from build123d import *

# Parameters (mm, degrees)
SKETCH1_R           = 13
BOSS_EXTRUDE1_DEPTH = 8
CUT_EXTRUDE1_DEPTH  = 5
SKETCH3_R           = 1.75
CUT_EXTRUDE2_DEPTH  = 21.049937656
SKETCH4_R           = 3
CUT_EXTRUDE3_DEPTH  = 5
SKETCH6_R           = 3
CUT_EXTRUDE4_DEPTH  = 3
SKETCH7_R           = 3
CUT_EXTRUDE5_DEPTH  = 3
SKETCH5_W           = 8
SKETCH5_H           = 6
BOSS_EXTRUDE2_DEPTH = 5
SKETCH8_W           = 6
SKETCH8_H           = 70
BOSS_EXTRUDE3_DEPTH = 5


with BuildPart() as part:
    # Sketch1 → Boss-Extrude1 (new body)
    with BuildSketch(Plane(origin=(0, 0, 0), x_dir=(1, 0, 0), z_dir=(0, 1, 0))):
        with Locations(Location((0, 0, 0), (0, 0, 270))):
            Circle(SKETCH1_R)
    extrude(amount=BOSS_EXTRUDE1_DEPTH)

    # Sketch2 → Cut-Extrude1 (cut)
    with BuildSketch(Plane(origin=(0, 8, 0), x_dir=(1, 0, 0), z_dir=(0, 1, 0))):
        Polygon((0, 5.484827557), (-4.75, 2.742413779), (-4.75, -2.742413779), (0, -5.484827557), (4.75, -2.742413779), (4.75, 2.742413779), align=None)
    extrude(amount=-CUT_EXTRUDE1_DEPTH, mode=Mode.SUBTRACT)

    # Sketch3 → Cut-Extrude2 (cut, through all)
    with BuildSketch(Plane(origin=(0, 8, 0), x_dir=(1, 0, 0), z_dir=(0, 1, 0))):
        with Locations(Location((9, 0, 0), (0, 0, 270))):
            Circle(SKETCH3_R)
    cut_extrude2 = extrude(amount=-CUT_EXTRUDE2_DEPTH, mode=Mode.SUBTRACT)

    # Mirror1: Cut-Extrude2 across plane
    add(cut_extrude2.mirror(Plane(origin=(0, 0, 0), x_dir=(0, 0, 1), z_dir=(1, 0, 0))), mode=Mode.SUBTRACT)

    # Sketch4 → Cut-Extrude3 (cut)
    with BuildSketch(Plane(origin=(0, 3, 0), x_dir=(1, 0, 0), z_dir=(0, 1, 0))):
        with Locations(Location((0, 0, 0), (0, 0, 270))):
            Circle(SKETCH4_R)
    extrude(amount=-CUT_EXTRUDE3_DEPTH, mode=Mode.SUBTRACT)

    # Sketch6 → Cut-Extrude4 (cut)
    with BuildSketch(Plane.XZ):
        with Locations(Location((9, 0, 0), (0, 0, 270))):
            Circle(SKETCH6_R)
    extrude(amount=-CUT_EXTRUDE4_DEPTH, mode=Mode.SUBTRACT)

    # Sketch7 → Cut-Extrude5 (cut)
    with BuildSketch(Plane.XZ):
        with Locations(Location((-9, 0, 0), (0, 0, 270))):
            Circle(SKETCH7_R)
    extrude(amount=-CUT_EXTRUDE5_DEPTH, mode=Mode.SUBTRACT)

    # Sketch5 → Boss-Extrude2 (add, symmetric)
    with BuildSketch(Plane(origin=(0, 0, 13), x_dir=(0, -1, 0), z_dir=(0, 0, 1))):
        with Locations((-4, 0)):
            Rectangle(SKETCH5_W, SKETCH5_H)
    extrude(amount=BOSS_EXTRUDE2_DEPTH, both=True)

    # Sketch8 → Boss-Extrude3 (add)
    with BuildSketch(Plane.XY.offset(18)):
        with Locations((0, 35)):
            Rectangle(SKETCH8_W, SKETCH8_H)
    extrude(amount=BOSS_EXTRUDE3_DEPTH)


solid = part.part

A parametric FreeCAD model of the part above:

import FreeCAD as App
import Part
import Sketcher

V = App.Vector
Q = App.Units.Quantity


def add_polygon(sketch, points):
    """Adds a closed chain of lines whose ends are joined by coincident constraints."""
    first, n = sketch.GeometryCount, len(points)
    for a, b in zip(points, points[1:] + points[:1]):
        sketch.addGeometry(Part.LineSegment(App.Vector(*a, 0), App.Vector(*b, 0)), False)
    for i in range(n):
        sketch.addConstraint(Sketcher.Constraint("Coincident", first + i, 2, first + (i + 1) % n, 1))

doc = App.newDocument("Part")
body = doc.addObject("PartDesign::Body", "Body")

# Sketch on XZ plane
sketch1 = body.newObject("Sketcher::SketchObject", "Sketch")
sketch1.AttachmentSupport = (doc.getObject("XZ_Plane"), [""])
sketch1.MapMode = "FlatFace"
sketch1.addGeometry(Part.Circle(V(0, 0, 0), V(0, 0, 1), 13), False)
sketch1.addConstraint(Sketcher.Constraint("Coincident", 0, 3, -1, 1))
sketch1.addConstraint(Sketcher.Constraint("Diameter", 0, 26.0))
pad1 = body.newObject("PartDesign::Pad", "Pad")
pad1.Profile = sketch1
pad1.Length = 8
pad1.Reversed = True

# Sketch on XZ plane
sketch2 = body.newObject("Sketcher::SketchObject", "Sketch001")
sketch2.AttachmentSupport = (doc.getObject("XZ_Plane"), [""])
sketch2.MapMode = "FlatFace"
sketch2.AttachmentOffset = App.Placement(V(0, 0, -8), App.Rotation())
add_polygon(sketch2, [(0, -5.484828), (-4.75, -2.742414), (-4.75, 2.742414), (0, 5.484828), (4.75, 2.742414), (4.75, -2.742414)])  # lines 0-5
sketch2.addConstraint(Sketcher.Constraint("Vertical", 1))
sketch2.addConstraint(Sketcher.Constraint("Vertical", 4))
sketch2.addConstraint(Sketcher.Constraint("Symmetric", 0, 2, 3, 2, -1, 1))
sketch2.addConstraint(Sketcher.Constraint("Symmetric", 2, 2, 5, 2, -1, 1))
sketch2.addConstraint(Sketcher.Constraint("PointOnObject", 2, 2, -2))
sketch2.addConstraint(Sketcher.Constraint("Parallel", 2, 5))
sketch2.addConstraint(Sketcher.Constraint("Horizontal", 1, 2, 3, 2))
sketch2.addConstraint(Sketcher.Constraint("Angle", 0, Q("150 deg")))
sketch2.addConstraint(Sketcher.Constraint("DistanceX", 1, 2, 3, 2, 9.5))
sketch2.addConstraint(Sketcher.Constraint("DistanceY", 1, 1, 1, 2, 5.484828))
pocket1 = body.newObject("PartDesign::Pocket", "Pocket")
pocket1.Profile = sketch2
pocket1.Length = 5
pocket1.Reversed = True

# Sketch on XZ plane
sketch3 = body.newObject("Sketcher::SketchObject", "Sketch002")
sketch3.AttachmentSupport = (doc.getObject("XZ_Plane"), [""])
sketch3.MapMode = "FlatFace"
sketch3.AttachmentOffset = App.Placement(V(0, 0, -8), App.Rotation())
sketch3.addGeometry(Part.Circle(V(9, 0, 0), V(0, 0, 1), 1.75), False)
sketch3.addConstraint(Sketcher.Constraint("PointOnObject", 0, 3, -1))
sketch3.addConstraint(Sketcher.Constraint("Diameter", 0, 3.5))
sketch3.addConstraint(Sketcher.Constraint("DistanceX", -1, 1, 0, 3, 9.0))
pocket2 = body.newObject("PartDesign::Pocket", "Pocket001")
pocket2.Profile = sketch3
pocket2.Type = "ThroughAll"
pocket2.Reversed = True
doc.recompute()

mirrored = body.newObject("PartDesign::Mirrored", "Mirrored")
mirrored.Originals = [pocket2]
mirrored.MirrorPlane = (doc.getObject("YZ_Plane"), [""])
body.Tip = mirrored

# Sketch on XZ plane
sketch4 = body.newObject("Sketcher::SketchObject", "Sketch003")
sketch4.AttachmentSupport = (doc.getObject("XZ_Plane"), [""])
sketch4.MapMode = "FlatFace"
sketch4.AttachmentOffset = App.Placement(V(0, 0, -3), App.Rotation())
sketch4.addGeometry(Part.Circle(V(0, 0, 0), V(0, 0, 1), 3), False)
sketch4.addConstraint(Sketcher.Constraint("Coincident", 0, 3, -1, 1))
sketch4.addConstraint(Sketcher.Constraint("Diameter", 0, 6.0))
pocket3 = body.newObject("PartDesign::Pocket", "Pocket002")
pocket3.Profile = sketch4
pocket3.Length = 5
pocket3.Reversed = True

# Sketch on XZ plane
sketch5 = body.newObject("Sketcher::SketchObject", "Sketch004")
sketch5.AttachmentSupport = (doc.getObject("XZ_Plane"), [""])
sketch5.MapMode = "FlatFace"
sketch5.addGeometry(Part.Circle(V(9, 0, 0), V(0, 0, 1), 3), False)
sketch5.addConstraint(Sketcher.Constraint("PointOnObject", 0, 3, -1))
sketch5.addConstraint(Sketcher.Constraint("Diameter", 0, 6.0))
sketch5.addConstraint(Sketcher.Constraint("DistanceX", -1, 1, 0, 3, 9.0))
pocket4 = body.newObject("PartDesign::Pocket", "Pocket003")
pocket4.Profile = sketch5
pocket4.Length = 3

# Sketch on XZ plane
sketch6 = body.newObject("Sketcher::SketchObject", "Sketch005")
sketch6.AttachmentSupport = (doc.getObject("XZ_Plane"), [""])
sketch6.MapMode = "FlatFace"
sketch6.addGeometry(Part.Circle(V(-9, 0, 0), V(0, 0, 1), 3), False)
sketch6.addConstraint(Sketcher.Constraint("PointOnObject", 0, 3, -1))
sketch6.addConstraint(Sketcher.Constraint("Diameter", 0, 6.0))
sketch6.addConstraint(Sketcher.Constraint("DistanceX", 0, 3, -1, 1, 9.0))
pocket5 = body.newObject("PartDesign::Pocket", "Pocket004")
pocket5.Profile = sketch6
pocket5.Length = 3

# Sketch on XY plane
sketch7 = body.newObject("Sketcher::SketchObject", "Sketch006")
sketch7.AttachmentSupport = (doc.getObject("XY_Plane"), [""])
sketch7.MapMode = "FlatFace"
sketch7.AttachmentOffset = App.Placement(V(0, 0, 13), App.Rotation())
add_polygon(sketch7, [(3, 8), (-3, 8), (-3, 0), (3, 0)])  # lines 0-3
sketch7.addConstraint(Sketcher.Constraint("Horizontal", 0))
sketch7.addConstraint(Sketcher.Constraint("Vertical", 1))
sketch7.addConstraint(Sketcher.Constraint("Horizontal", 2))
sketch7.addConstraint(Sketcher.Constraint("Vertical", 3))
sketch7.addConstraint(Sketcher.Constraint("Symmetric", 1, 2, 2, 2, -1, 1))
sketch7.addConstraint(Sketcher.Constraint("DistanceX", 0, 2, 0, 1, 6.0))
sketch7.addConstraint(Sketcher.Constraint("DistanceY", 1, 2, 1, 1, 8.0))
pad2 = body.newObject("PartDesign::Pad", "Pad001")
pad2.Profile = sketch7
pad2.Length = 10
pad2.Midplane = True

# Sketch on XY plane
sketch8 = body.newObject("Sketcher::SketchObject", "Sketch007")
sketch8.AttachmentSupport = (doc.getObject("XY_Plane"), [""])
sketch8.MapMode = "FlatFace"
sketch8.AttachmentOffset = App.Placement(V(0, 0, 18), App.Rotation())
add_polygon(sketch8, [(-3, 70), (-3, 0), (3, 0), (3, 70)])  # lines 0-3
sketch8.addConstraint(Sketcher.Constraint("Vertical", 0))
sketch8.addConstraint(Sketcher.Constraint("Horizontal", 1))
sketch8.addConstraint(Sketcher.Constraint("Vertical", 2))
sketch8.addConstraint(Sketcher.Constraint("Horizontal", 3))
sketch8.addConstraint(Sketcher.Constraint("Symmetric", 0, 2, 1, 2, -1, 1))
sketch8.addConstraint(Sketcher.Constraint("DistanceX", 1, 1, 1, 2, 6.0))
sketch8.addConstraint(Sketcher.Constraint("DistanceY", 0, 2, 0, 1, 70.0))
pad3 = body.newObject("PartDesign::Pad", "Pad002")
pad3.Profile = sketch8
pad3.Length = 5

doc.recompute()
